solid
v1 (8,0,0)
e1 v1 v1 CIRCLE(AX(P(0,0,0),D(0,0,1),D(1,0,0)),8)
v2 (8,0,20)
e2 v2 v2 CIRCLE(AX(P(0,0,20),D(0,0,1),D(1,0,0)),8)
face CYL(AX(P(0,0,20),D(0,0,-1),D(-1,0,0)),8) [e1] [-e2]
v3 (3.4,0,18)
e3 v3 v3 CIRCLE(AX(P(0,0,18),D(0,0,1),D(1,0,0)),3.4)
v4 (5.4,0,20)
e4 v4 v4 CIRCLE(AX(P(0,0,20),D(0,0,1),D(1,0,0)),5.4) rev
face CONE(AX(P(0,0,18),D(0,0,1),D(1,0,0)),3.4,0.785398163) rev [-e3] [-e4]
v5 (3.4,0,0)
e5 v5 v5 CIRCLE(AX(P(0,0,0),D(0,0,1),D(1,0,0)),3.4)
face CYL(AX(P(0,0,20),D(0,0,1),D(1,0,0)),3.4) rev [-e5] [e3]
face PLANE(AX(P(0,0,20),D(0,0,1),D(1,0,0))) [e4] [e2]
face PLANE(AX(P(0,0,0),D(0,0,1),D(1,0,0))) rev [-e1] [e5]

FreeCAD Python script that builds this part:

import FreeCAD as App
import Part
import Sketcher


def edges_at(feature, points):
    """Names of the edges that pass closest to the given points."""
    edges = feature.Shape.Edges
    near = lambda p: min(range(len(edges)), key=lambda i: edges[i].distToShape(Part.Vertex(*p))[0])
    return sorted({f"Edge{near(p) + 1}" for p in points})

doc = App.newDocument("Part")
body = doc.addObject("PartDesign::Body", "Body")

# Sketch on XY plane
sketch1 = body.newObject("Sketcher::SketchObject", "Sketch")
sketch1.AttachmentSupport = (doc.getObject("XY_Plane"), [""])
sketch1.MapMode = "FlatFace"
sketch1.addGeometry(Part.Circle(App.Vector(0, 0, 0), App.Vector(0, 0, 1), 8), False)
sketch1.addConstraint(Sketcher.Constraint("Coincident", 0, 3, -1, 1))
sketch1.addConstraint(Sketcher.Constraint("Diameter", 0, 16.0))
pad1 = body.newObject("PartDesign::Pad", "Pad")
pad1.Profile = sketch1
pad1.Length = 20

# Sketch on XY plane
sketch2 = body.newObject("Sketcher::SketchObject", "Sketch001")
sketch2.AttachmentSupport = (doc.getObject("XY_Plane"), [""])
sketch2.MapMode = "FlatFace"
sketch2.AttachmentOffset = App.Placement(App.Vector(0, 0, 20), App.Rotation())
sketch2.addGeometry(Part.Circle(App.Vector(0, 0, 0), App.Vector(0, 0, 1), 3.4), False)
sketch2.addConstraint(Sketcher.Constraint("Coincident", 0, 3, -1, 1))
sketch2.addConstraint(Sketcher.Constraint("Diameter", 0, 6.8))
doc.recompute()
hole = body.newObject("PartDesign::Hole", "Hole")
hole.Profile = sketch2
hole.ThreadType = "None"
hole.Diameter = 6.8
hole.DepthType = "ThroughAll"
doc.recompute()

chamfer = body.newObject("PartDesign::Chamfer", "Chamfer")
chamfer.Base = (hole, edges_at(hole, [(3.4, 0, 20)]))
chamfer.Size = 2

doc.recompute()
